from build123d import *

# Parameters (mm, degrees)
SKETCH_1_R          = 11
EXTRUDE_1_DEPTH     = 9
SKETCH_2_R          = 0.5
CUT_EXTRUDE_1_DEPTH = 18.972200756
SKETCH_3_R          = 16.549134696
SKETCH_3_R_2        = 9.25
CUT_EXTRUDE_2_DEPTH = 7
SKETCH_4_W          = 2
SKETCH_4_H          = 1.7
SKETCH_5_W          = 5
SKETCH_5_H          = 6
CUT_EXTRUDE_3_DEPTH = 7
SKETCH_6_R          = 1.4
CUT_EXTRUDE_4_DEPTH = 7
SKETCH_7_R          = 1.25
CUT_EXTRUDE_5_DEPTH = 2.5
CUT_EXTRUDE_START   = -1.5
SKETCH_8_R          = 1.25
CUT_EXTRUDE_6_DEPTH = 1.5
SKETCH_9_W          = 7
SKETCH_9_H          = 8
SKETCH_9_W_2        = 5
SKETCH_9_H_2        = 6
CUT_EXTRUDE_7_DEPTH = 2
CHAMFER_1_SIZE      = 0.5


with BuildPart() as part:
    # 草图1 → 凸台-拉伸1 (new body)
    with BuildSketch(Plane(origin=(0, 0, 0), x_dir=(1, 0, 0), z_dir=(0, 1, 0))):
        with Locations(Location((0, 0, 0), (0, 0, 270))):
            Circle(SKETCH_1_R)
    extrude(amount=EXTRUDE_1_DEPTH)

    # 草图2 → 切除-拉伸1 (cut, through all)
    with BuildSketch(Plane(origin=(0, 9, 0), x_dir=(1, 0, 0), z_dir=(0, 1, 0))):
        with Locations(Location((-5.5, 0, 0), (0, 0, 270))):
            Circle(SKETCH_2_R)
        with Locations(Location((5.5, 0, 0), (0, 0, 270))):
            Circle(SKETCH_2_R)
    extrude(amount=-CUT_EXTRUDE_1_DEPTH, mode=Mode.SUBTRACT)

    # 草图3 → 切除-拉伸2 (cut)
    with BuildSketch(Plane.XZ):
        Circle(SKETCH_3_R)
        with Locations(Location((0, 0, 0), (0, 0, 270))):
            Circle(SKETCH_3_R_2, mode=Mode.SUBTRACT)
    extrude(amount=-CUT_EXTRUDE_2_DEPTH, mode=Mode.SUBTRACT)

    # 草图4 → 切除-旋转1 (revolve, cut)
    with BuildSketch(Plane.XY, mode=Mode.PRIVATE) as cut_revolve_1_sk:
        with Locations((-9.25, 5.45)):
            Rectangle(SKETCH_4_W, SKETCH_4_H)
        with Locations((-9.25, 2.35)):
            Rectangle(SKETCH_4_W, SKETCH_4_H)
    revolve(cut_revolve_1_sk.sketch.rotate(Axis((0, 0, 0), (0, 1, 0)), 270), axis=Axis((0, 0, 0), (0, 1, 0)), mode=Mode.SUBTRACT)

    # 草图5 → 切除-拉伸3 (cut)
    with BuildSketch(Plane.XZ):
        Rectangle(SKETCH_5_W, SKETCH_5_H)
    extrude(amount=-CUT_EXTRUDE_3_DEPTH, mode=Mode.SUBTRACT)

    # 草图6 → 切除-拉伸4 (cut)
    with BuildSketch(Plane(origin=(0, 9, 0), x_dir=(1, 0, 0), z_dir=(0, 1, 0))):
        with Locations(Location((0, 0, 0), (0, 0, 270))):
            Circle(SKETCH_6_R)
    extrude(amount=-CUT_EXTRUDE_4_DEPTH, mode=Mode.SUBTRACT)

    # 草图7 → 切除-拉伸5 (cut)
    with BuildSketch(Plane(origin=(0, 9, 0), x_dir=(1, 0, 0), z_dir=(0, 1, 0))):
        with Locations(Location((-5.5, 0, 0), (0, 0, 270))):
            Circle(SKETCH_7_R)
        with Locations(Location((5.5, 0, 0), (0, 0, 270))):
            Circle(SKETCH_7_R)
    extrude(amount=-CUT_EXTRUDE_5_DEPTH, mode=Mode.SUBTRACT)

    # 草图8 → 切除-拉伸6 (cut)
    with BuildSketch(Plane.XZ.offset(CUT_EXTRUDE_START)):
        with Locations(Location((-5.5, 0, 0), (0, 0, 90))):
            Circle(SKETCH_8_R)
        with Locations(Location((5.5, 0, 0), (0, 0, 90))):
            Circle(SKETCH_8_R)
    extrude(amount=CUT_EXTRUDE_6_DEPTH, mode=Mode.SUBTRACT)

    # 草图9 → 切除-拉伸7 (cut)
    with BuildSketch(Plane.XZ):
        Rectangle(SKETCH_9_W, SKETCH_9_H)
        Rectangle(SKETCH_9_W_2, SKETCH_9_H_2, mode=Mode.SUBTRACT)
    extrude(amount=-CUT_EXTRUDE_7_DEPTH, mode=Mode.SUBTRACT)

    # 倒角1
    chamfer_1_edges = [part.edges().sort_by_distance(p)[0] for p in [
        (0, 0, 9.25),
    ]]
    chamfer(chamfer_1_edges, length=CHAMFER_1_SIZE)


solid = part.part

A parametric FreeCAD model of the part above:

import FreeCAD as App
import Part
import Sketcher

V = App.Vector
Q = App.Units.Quantity


def edges_at(feature, points):
    """Names of the edges that pass closest to the given points."""
    edges = feature.Shape.Edges
    near = lambda p: min(range(len(edges)), key=lambda i: edges[i].distToShape(Part.Vertex(*p))[0])
    return sorted({f"Edge{near(p) + 1}" for p in points})

doc = App.newDocument("Part")
body = doc.addObject("PartDesign::Body", "Body")

sketch1 = doc.addObject("Sketcher::SketchObject", "Sketch")
body.addObject(sketch1)
sketch1.AttachmentSupport = (doc.XZ_Plane, [""])
sketch1.MapMode = "FlatFace"
sketch1.addGeometry(Part.Circle(V(0, 0, 0), V(0, 0, 1), 11), False)
sketch1.addConstraint(Sketcher.Constraint("Coincident", 0, 3, -1, 1))
sketch1.addConstraint(Sketcher.Constraint("Diameter", 0, Q("22 mm")))
pad1 = doc.addObject("PartDesign::Pad", "Pad")
body.addObject(pad1)
pad1.Profile = sketch1
pad1.Length = 9
pad1.Reversed = True

sketch2 = doc.addObject("Sketcher::SketchObject", "Sketch001")
body.addObject(sketch2)
sketch2.AttachmentSupport = (doc.XZ_Plane, [""])
sketch2.MapMode = "FlatFace"
sketch2.AttachmentOffset = App.Placement(V(0, 0, -9), App.Rotation())
sketch2.addGeometry(Part.Circle(V(-5.5, 0, 0), V(0, 0, 1), 0.5), False)
sketch2.addGeometry(Part.Circle(V(5.5, 0, 0), V(0, 0, 1), 0.5), False)
sketch2.addConstraint(Sketcher.Constraint("Equal", 0, 1))
sketch2.addConstraint(Sketcher.Constraint("Symmetric", 0, 3, 1, 3, -1, 1))
sketch2.addConstraint(Sketcher.Constraint("PointOnObject", 0, 3, -1))
sketch2.addConstraint(Sketcher.Constraint("Diameter", 0, Q("1 mm")))
sketch2.addConstraint(Sketcher.Constraint("DistanceX", 0, 3, 1, 3, Q("11 mm")))
pocket1 = doc.addObject("PartDesign::Pocket", "Pocket")
body.addObject(pocket1)
pocket1.Profile = sketch2
pocket1.Type = "ThroughAll"
pocket1.Reversed = True

sketch3 = doc.addObject("Sketcher::SketchObject", "Sketch002")
body.addObject(sketch3)
sketch3.AttachmentSupport = (doc.XZ_Plane, [""])
sketch3.MapMode = "FlatFace"
sketch3.addGeometry(Part.Circle(V(0, 0, 0), V(0, 0, 1), 16.549135), False)
sketch3.addGeometry(Part.Circle(V(0, 0, 0), V(0, 0, 1), 9.25), False)
sketch3.addConstraint(Sketcher.Constraint("Coincident", 0, 3, -1, 1))
sketch3.addConstraint(Sketcher.Constraint("Coincident", 1, 3, -1, 1))
sketch3.addConstraint(Sketcher.Constraint("Diameter", 1, Q("18.5 mm")))
sketch3.addConstraint(Sketcher.Constraint("Diameter", 0, Q("33.098269 mm")))
pocket2 = doc.addObject("PartDesign::Pocket", "Pocket001")
body.addObject(pocket2)
pocket2.Profile = sketch3
pocket2.Length = 7

sketch4 = doc.addObject("Sketcher::SketchObject", "Sketch003")
body.addObject(sketch4)
sketch4.AttachmentSupport = (doc.XY_Plane, [""])
sketch4.MapMode = "FlatFace"
sketch4.addGeometry(Part.LineSegment(V(-10.25, 6.3, 0), V(-10.25, 4.6, 0)), False)
sketch4.addGeometry(Part.LineSegment(V(-10.25, 4.6, 0), V(-8.25, 4.6, 0)), False)
sketch4.addGeometry(Part.LineSegment(V(-8.25, 4.6, 0), V(-8.25, 6.3, 0)), False)
sketch4.addGeometry(Part.LineSegment(V(-8.25, 6.3, 0), V(-10.25, 6.3, 0)), False)
sketch4.addGeometry(Part.LineSegment(V(-10.25, 3.2, 0), V(-10.25, 1.5, 0)), False)
sketch4.addGeometry(Part.LineSegment(V(-10.25, 1.5, 0), V(-8.25, 1.5, 0)), False)
sketch4.addGeometry(Part.LineSegment(V(-8.25, 1.5, 0), V(-8.25, 3.2, 0)), False)
sketch4.addGeometry(Part.LineSegment(V(-8.25, 3.2, 0), V(-10.25, 3.2, 0)), False)
sketch4.addConstraint(Sketcher.Constraint("Coincident", 0, 2, 1, 1))
sketch4.addConstraint(Sketcher.Constraint("Coincident", 1, 2, 2, 1))
sketch4.addConstraint(Sketcher.Constraint("Coincident", 2, 2, 3, 1))
sketch4.addConstraint(Sketcher.Constraint("Coincident", 3, 2, 0, 1))
sketch4.addConstraint(Sketcher.Constraint("Coincident", 4, 2, 5, 1))
sketch4.addConstraint(Sketcher.Constraint("Coincident", 5, 2, 6, 1))
sketch4.addConstraint(Sketcher.Constraint("Coincident", 6, 2, 7, 1))
sketch4.addConstraint(Sketcher.Constraint("Coincident", 7, 2, 4, 1))
sketch4.addConstraint(Sketcher.Constraint("Vertical", 0))
sketch4.addConstraint(Sketcher.Constraint("Horizontal", 1))
sketch4.addConstraint(Sketcher.Constraint("Vertical", 2))
sketch4.addConstraint(Sketcher.Constraint("Horizontal", 3))
sketch4.addConstraint(Sketcher.Constraint("Vertical", 4))
sketch4.addConstraint(Sketcher.Constraint("Horizontal", 5))
sketch4.addConstraint(Sketcher.Constraint("Vertical", 6))
sketch4.addConstraint(Sketcher.Constraint("Horizontal", 7))
sketch4.addConstraint(Sketcher.Constraint("Vertical", 3, 2, 4, 2))
sketch4.addConstraint(Sketcher.Constraint("Vertical", 2, 2, 5, 2))
sketch4.addConstraint(Sketcher.Constraint("Equal", 2, 4))
sketch4.addConstraint(Sketcher.Constraint("DistanceX", 1, 1, 1, 2, Q("2 mm")))
sketch4.addConstraint(Sketcher.Constraint("DistanceY", 0, 2, 0, 1, Q("1.7 mm")))
sketch4.addConstraint(Sketcher.Constraint("DistanceY", -1, 1, 0, 2, Q("4.6 mm")))
sketch4.addConstraint(Sketcher.Constraint("DistanceY", -1, 1, 4, 2, Q("1.5 mm")))
sketch4.addConstraint(Sketcher.Constraint("DistanceX", 0, 2, -1, 1, Q("10.25 mm")))
groove = doc.addObject("PartDesign::Groove", "Groove")
body.addObject(groove)
groove.Profile = sketch4
groove.ReferenceAxis = (sketch4, ["V_Axis"])
groove.Angle = 360

sketch5 = doc.addObject("Sketcher::SketchObject", "Sketch004")
body.addObject(sketch5)
sketch5.AttachmentSupport = (doc.XZ_Plane, [""])
sketch5.MapMode = "FlatFace"
sketch5.addGeometry(Part.LineSegment(V(-2.5, 3, 0), V(-2.5, -3, 0)), False)
sketch5.addGeometry(Part.LineSegment(V(-2.5, -3, 0), V(2.5, -3, 0)), False)
sketch5.addGeometry(Part.LineSegment(V(2.5, -3, 0), V(2.5, 3, 0)), False)
sketch5.addGeometry(Part.LineSegment(V(2.5, 3, 0), V(-2.5, 3, 0)), False)
sketch5.addConstraint(Sketcher.Constraint("Coincident", 0, 2, 1, 1))
sketch5.addConstraint(Sketcher.Constraint("Coincident", 1, 2, 2, 1))
sketch5.addConstraint(Sketcher.Constraint("Coincident", 2, 2, 3, 1))
sketch5.addConstraint(Sketcher.Constraint("Coincident", 3, 2, 0, 1))
sketch5.addConstraint(Sketcher.Constraint("Vertical", 0))
sketch5.addConstraint(Sketcher.Constraint("Horizontal", 1))
sketch5.addConstraint(Sketcher.Constraint("Vertical", 2))
sketch5.addConstraint(Sketcher.Constraint("Horizontal", 3))
sketch5.addConstraint(Sketcher.Constraint("Symmetric", 0, 2, 2, 2, -1, 1))
sketch5.addConstraint(Sketcher.Constraint("DistanceX", 1, 1, 1, 2, Q("5 mm")))
sketch5.addConstraint(Sketcher.Constraint("DistanceY", 0, 2, 0, 1, Q("6 mm")))
pocket3 = doc.addObject("PartDesign::Pocket", "Pocket002")
body.addObject(pocket3)
pocket3.Profile = sketch5
pocket3.Length = 7

sketch6 = doc.addObject("Sketcher::SketchObject", "Sketch005")
body.addObject(sketch6)
sketch6.AttachmentSupport = (doc.XZ_Plane, [""])
sketch6.MapMode = "FlatFace"
sketch6.AttachmentOffset = App.Placement(V(0, 0, -9), App.Rotation())
sketch6.addGeometry(Part.Circle(V(0, 0, 0), V(0, 0, 1), 1.4), False)
sketch6.addConstraint(Sketcher.Constraint("Coincident", 0, 3, -1, 1))
sketch6.addConstraint(Sketcher.Constraint("Diameter", 0, Q("2.8 mm")))
pocket4 = doc.addObject("PartDesign::Pocket", "Pocket003")
body.addObject(pocket4)
pocket4.Profile = sketch6
pocket4.Length = 7
pocket4.Reversed = True

sketch7 = doc.addObject("Sketcher::SketchObject", "Sketch006")
body.addObject(sketch7)
sketch7.AttachmentSupport = (doc.XZ_Plane, [""])
sketch7.MapMode = "FlatFace"
sketch7.AttachmentOffset = App.Placement(V(0, 0, -9), App.Rotation())
sketch7.addGeometry(Part.Circle(V(-5.5, 0, 0), V(0, 0, 1), 1.25), False)
sketch7.addGeometry(Part.Circle(V(5.5, 0, 0), V(0, 0, 1), 1.25), False)
sketch7.addConstraint(Sketcher.Constraint("Equal", 0, 1))
sketch7.addConstraint(Sketcher.Constraint("Symmetric", 0, 3, 1, 3, -1, 1))
sketch7.addConstraint(Sketcher.Constraint("PointOnObject", 0, 3, -1))
sketch7.addConstraint(Sketcher.Constraint("Diameter", 0, Q("2.5 mm")))
sketch7.addConstraint(Sketcher.Constraint("DistanceX", 0, 3, 1, 3, Q("11 mm")))
pocket5 = doc.addObject("PartDesign::Pocket", "Pocket004")
body.addObject(pocket5)
pocket5.Profile = sketch7
pocket5.Length = 2.5
pocket5.Reversed = True

sketch8 = doc.addObject("Sketcher::SketchObject", "Sketch007")
body.addObject(sketch8)
sketch8.AttachmentSupport = (doc.XZ_Plane, [""])
sketch8.MapMode = "FlatFace"
sketch8.AttachmentOffset = App.Placement(V(0, 0, -1.5), App.Rotation())
sketch8.addGeometry(Part.Circle(V(-5.5, 0, 0), V(0, 0, 1), 1.25), False)
sketch8.addGeometry(Part.Circle(V(5.5, 0, 0), V(0, 0, 1), 1.25), False)
sketch8.addConstraint(Sketcher.Constraint("Equal", 0, 1))
sketch8.addConstraint(Sketcher.Constraint("Symmetric", 0, 3, 1, 3, -1, 1))
sketch8.addConstraint(Sketcher.Constraint("PointOnObject", 0, 3, -1))
sketch8.addConstraint(Sketcher.Constraint("Diameter", 0, Q("2.5 mm")))
sketch8.addConstraint(Sketcher.Constraint("DistanceX", 0, 3, 1, 3, Q("11 mm")))
pocket6 = doc.addObject("PartDesign::Pocket", "Pocket005")
body.addObject(pocket6)
pocket6.Profile = sketch8
pocket6.Length = 1.5
pocket6.Reversed = True

sketch9 = doc.addObject("Sketcher::SketchObject", "Sketch008")
body.addObject(sketch9)
sketch9.AttachmentSupport = (doc.XZ_Plane, [""])
sketch9.MapMode = "FlatFace"
sketch9.addGeometry(Part.LineSegment(V(-3.5, 4, 0), V(-3.5, -4, 0)), False)
sketch9.addGeometry(Part.LineSegment(V(-3.5, -4, 0), V(3.5, -4, 0)), False)
sketch9.addGeometry(Part.LineSegment(V(3.5, -4, 0), V(3.5, 4, 0)), False)
sketch9.addGeometry(Part.LineSegment(V(3.5, 4, 0), V(-3.5, 4, 0)), False)
sketch9.addGeometry(Part.LineSegment(V(2.5, -3, 0), V(-2.5, -3, 0)), False)
sketch9.addGeometry(Part.LineSegment(V(-2.5, -3, 0), V(-2.5, 3, 0)), False)
sketch9.addGeometry(Part.LineSegment(V(-2.5, 3, 0), V(2.5, 3, 0)), False)
sketch9.addGeometry(Part.LineSegment(V(2.5, 3, 0), V(2.5, -3, 0)), False)
sketch9.addConstraint(Sketcher.Constraint("Coincident", 0, 2, 1, 1))
sketch9.addConstraint(Sketcher.Constraint("Coincident", 1, 2, 2, 1))
sketch9.addConstraint(Sketcher.Constraint("Coincident", 2, 2, 3, 1))
sketch9.addConstraint(Sketcher.Constraint("Coincident", 3, 2, 0, 1))
sketch9.addConstraint(Sketcher.Constraint("Coincident", 4, 2, 5, 1))
sketch9.addConstraint(Sketcher.Constraint("Coincident", 5, 2, 6, 1))
sketch9.addConstraint(Sketcher.Constraint("Coincident", 6, 2, 7, 1))
sketch9.addConstraint(Sketcher.Constraint("Coincident", 7, 2, 4, 1))
sketch9.addConstraint(Sketcher.Constraint("Vertical", 0))
sketch9.addConstraint(Sketcher.Constraint("Horizontal", 1))
sketch9.addConstraint(Sketcher.Constraint("Vertical", 2))
sketch9.addConstraint(Sketcher.Constraint("Horizontal", 3))
sketch9.addConstraint(Sketcher.Constraint("Horizontal", 4))
sketch9.addConstraint(Sketcher.Constraint("Vertical", 5))
sketch9.addConstraint(Sketcher.Constraint("Horizontal", 6))
sketch9.addConstraint(Sketcher.Constraint("Vertical", 7))
sketch9.addConstraint(Sketcher.Constraint("Symmetric", 0, 2, 2, 2, -1, 1))
sketch9.addConstraint(Sketcher.Constraint("Symmetric", 4, 2, 6, 2, -1, 1))
sketch9.addConstraint(Sketcher.Constraint("DistanceX", 1, 1, 1, 2, Q("7 mm")))
sketch9.addConstraint(Sketcher.Constraint("DistanceX", 4, 2, 4, 1, Q("5 mm")))
sketch9.addConstraint(Sketcher.Constraint("DistanceY", 0, 2, 0, 1, Q("8 mm")))
sketch9.addConstraint(Sketcher.Constraint("DistanceY", 5, 1, 5, 2, Q("6 mm")))
pocket7 = doc.addObject("PartDesign::Pocket", "Pocket006")
body.addObject(pocket7)
pocket7.Profile = sketch9
pocket7.Length = 2
doc.recompute()

chamfer = doc.addObject("PartDesign::Chamfer", "Chamfer")
body.addObject(chamfer)
chamfer.Base = (pocket7, edges_at(pocket7, [(0, 0, 9.25)]))
chamfer.Size = 0.5

doc.recompute()
